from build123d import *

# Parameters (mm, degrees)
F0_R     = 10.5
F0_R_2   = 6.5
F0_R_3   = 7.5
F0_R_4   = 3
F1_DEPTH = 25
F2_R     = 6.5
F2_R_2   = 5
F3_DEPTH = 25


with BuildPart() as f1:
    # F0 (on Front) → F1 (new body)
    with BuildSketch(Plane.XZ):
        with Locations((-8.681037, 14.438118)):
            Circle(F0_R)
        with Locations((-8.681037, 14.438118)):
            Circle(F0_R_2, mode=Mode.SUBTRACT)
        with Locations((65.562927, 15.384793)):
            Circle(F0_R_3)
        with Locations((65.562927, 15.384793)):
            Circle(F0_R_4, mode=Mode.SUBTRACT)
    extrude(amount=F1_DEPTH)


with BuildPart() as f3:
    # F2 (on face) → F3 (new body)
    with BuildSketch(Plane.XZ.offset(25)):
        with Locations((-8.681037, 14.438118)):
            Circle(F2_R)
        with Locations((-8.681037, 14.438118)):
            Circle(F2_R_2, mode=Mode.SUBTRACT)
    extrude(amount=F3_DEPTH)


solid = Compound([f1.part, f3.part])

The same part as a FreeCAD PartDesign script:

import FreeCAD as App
import Part
import Sketcher

V = App.Vector
Q = App.Units.Quantity

doc = App.newDocument("Part")
params = doc.addObject("Spreadsheet::Sheet", "Params")
for row, (alias, value) in enumerate([
    ("sketch1_diameter", "21 mm"),
    ("sketch1_diameter2", "13 mm"),
    ("sketch1_diameter3", "15 mm"),
    ("sketch1_diameter4", "6 mm"),
    ("pad1_length", "25 mm"),
    ("sketch2_diameter", "13 mm"),
    ("sketch2_diameter2", "10 mm"),
    ("pad2_length", "25 mm"),
], start=1):
    params.set(f"A{row}", alias)
    params.set(f"B{row}", "=" + value)
    params.setAlias(f"B{row}", alias)

body = doc.addObject("PartDesign::Body", "Body")
body.AllowCompound = True

# Sketch on XZ plane
sketch1 = body.newObject("Sketcher::SketchObject", "Sketch")
sketch1.AttachmentSupport = (doc.getObject("XZ_Plane"), [""])
sketch1.MapMode = "FlatFace"
sketch1.addGeometry([
    Part.Circle(V(-8.7, 14.4, 0), V(0, 0, 1), 10.5),
    Part.Circle(V(-8.7, 14.4, 0), V(0, 0, 1), 6.5),
    Part.Circle(V(65.6, 15.4, 0), V(0, 0, 1), 7.5),
    Part.Circle(V(65.6, 15.4, 0), V(0, 0, 1), 3),
], False)
sketch1.addConstraint([
    Sketcher.Constraint("Coincident", 1, 3, 0, 3),
    Sketcher.Constraint("Coincident", 3, 3, 2, 3),
    Sketcher.Constraint("Diameter", 0, Q("21 mm")),
    Sketcher.Constraint("Diameter", 1, Q("13 mm")),
    Sketcher.Constraint("Diameter", 2, Q("15 mm")),
    Sketcher.Constraint("Diameter", 3, Q("6 mm")),
    Sketcher.Constraint("DistanceX", 0, 3, -1, 1, Q("8.681037 mm")),
    Sketcher.Constraint("DistanceY", -1, 1, 0, 3, Q("14.438118 mm")),
    Sketcher.Constraint("DistanceX", -1, 1, 2, 3, Q("65.562927 mm")),
    Sketcher.Constraint("DistanceY", -1, 1, 2, 3, Q("15.384793 mm")),
])
sketch1.setExpression("Constraints[2]", "Params.sketch1_diameter")
sketch1.setExpression("Constraints[3]", "Params.sketch1_diameter2")
sketch1.setExpression("Constraints[4]", "Params.sketch1_diameter3")
sketch1.setExpression("Constraints[5]", "Params.sketch1_diameter4")
pad1 = body.newObject("PartDesign::Pad", "Pad")
pad1.Profile = sketch1
pad1.setExpression("Length", "Params.pad1_length")
body2 = doc.addObject("PartDesign::Body", "Body001")

# Sketch on XZ plane
sketch2 = body2.newObject("Sketcher::SketchObject", "Sketch001")
sketch2.AttachmentSupport = (doc.getObject("XZ_Plane001"), [""])
sketch2.MapMode = "FlatFace"
sketch2.AttachmentOffset = App.Placement(V(0, 0, 25), App.Rotation())
sketch2.addGeometry([
    Part.Circle(V(-9, 14, 0), V(0, 0, 1), 6),
    Part.Circle(V(-9, 14, 0), V(0, 0, 1), 5),
], False)
sketch2.addConstraint([
    Sketcher.Constraint("Coincident", 1, 3, 0, 3),
    Sketcher.Constraint("Diameter", 0, Q("13 mm")),
    Sketcher.Constraint("Diameter", 1, Q("10 mm")),
    Sketcher.Constraint("DistanceX", 0, 3, -1, 1, Q("8.681037 mm")),
    Sketcher.Constraint("DistanceY", -1, 1, 0, 3, Q("14.438118 mm")),
])
sketch2.setExpression("Constraints[1]", "Params.sketch2_diameter")
sketch2.setExpression("Constraints[2]", "Params.sketch2_diameter2")
pad2 = body2.newObject("PartDesign::Pad", "Pad001")
pad2.Profile = sketch2
pad2.setExpression("Length", "Params.pad2_length")

doc.recompute()
